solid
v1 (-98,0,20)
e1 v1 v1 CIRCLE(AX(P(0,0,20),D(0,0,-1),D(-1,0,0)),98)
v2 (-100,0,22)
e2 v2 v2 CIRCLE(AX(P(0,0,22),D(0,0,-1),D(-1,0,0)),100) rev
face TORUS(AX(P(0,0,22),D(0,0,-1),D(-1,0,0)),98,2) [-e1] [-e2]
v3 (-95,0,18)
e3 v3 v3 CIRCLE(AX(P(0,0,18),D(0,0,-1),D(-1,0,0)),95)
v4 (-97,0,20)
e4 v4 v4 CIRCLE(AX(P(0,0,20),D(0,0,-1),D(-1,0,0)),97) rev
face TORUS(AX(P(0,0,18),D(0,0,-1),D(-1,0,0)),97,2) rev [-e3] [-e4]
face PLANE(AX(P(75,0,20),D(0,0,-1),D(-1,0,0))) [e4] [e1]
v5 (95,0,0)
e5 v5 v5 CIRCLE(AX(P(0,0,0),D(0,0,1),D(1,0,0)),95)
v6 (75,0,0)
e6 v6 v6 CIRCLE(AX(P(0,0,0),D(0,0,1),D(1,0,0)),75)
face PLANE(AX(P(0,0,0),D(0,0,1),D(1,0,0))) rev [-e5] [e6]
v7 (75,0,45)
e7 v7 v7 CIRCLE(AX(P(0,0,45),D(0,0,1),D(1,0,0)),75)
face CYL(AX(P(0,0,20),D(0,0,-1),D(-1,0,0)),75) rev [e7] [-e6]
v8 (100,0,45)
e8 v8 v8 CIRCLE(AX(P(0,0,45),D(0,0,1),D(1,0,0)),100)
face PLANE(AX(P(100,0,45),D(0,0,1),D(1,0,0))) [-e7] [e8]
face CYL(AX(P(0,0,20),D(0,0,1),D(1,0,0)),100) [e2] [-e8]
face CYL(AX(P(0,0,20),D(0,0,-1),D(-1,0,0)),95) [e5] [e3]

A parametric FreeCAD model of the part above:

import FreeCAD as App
import Part
import Sketcher
Q = App.Units.Quantity


def edges_at(feature, points):
    """Names of the edges that pass closest to the given points."""
    edges = feature.Shape.Edges
    near = lambda p: min(range(len(edges)), key=lambda i: edges[i].distToShape(Part.Vertex(*p))[0])
    return sorted({f"Edge{near(p) + 1}" for p in points})

doc = App.newDocument("Part")
params = doc.addObject("Spreadsheet::Sheet", "Params")
for row, (alias, value) in enumerate([
    ("sketch1_diameter", "190 mm"),
    ("sketch1_diameter2", "150 mm"),
    ("pad1_length", "20 mm"),
    ("sketch2_width", "25 mm"),
    ("revolution_angle", "360 deg"),
    ("fillet_radius", "2 mm"),
], start=1):
    params.set(f"A{row}", alias)
    params.set(f"B{row}", "=" + value)
    params.setAlias(f"B{row}", alias)

body = doc.addObject("PartDesign::Body", "Body")

# Sketch on XY plane
sketch1 = body.newObject("Sketcher::SketchObject", "Sketch")
sketch1.AttachmentSupport = (doc.getObject("XY_Plane"), [""])
sketch1.MapMode = "FlatFace"
sketch1.addGeometry(Part.Circle(App.Vector(0, 0, 0), App.Vector(0, 0, 1), 95), False)
sketch1.addGeometry(Part.Circle(App.Vector(0, 0, 0), App.Vector(0, 0, 1), 75), False)
sketch1.addConstraint(Sketcher.Constraint("Coincident", 0, 3, -1, 1))
sketch1.addConstraint(Sketcher.Constraint("Coincident", 1, 3, -1, 1))
sketch1.addConstraint(Sketcher.Constraint("Diameter", 0, Q("190 mm")))
sketch1.addConstraint(Sketcher.Constraint("Diameter", 1, Q("150 mm")))
sketch1.setExpression("Constraints[2]", "Params.sketch1_diameter")
sketch1.setExpression("Constraints[3]", "Params.sketch1_diameter2")
pad1 = body.newObject("PartDesign::Pad", "Pad")
pad1.Profile = sketch1
pad1.setExpression("Length", "Params.pad1_length")

# Sketch on XZ plane
sketch2 = body.newObject("Sketcher::SketchObject", "Sketch001")
sketch2.AttachmentSupport = (doc.getObject("XZ_Plane"), [""])
sketch2.MapMode = "FlatFace"
sketch2.addGeometry(Part.LineSegment(App.Vector(75, 20, 0), App.Vector(75, 45, 0)), False)
sketch2.addGeometry(Part.LineSegment(App.Vector(75, 45, 0), App.Vector(100, 45, 0)), False)
sketch2.addGeometry(Part.LineSegment(App.Vector(100, 45, 0), App.Vector(100, 20, 0)), False)
sketch2.addGeometry(Part.LineSegment(App.Vector(100, 20, 0), App.Vector(75, 20, 0)), False)
sketch2.addConstraint(Sketcher.Constraint("Coincident", 0, 2, 1, 1))
sketch2.addConstraint(Sketcher.Constraint("Coincident", 1, 2, 2, 1))
sketch2.addConstraint(Sketcher.Constraint("Coincident", 2, 2, 3, 1))
sketch2.addConstraint(Sketcher.Constraint("Coincident", 3, 2, 0, 1))
sketch2.addConstraint(Sketcher.Constraint("Vertical", 0))
sketch2.addConstraint(Sketcher.Constraint("Horizontal", 1))
sketch2.addConstraint(Sketcher.Constraint("Vertical", 2))
sketch2.addConstraint(Sketcher.Constraint("Horizontal", 3))
sketch2.addConstraint(Sketcher.Constraint("Equal", 3, 0))
sketch2.addConstraint(Sketcher.Constraint("DistanceX", 1, 1, 1, 2, Q("25 mm")))
sketch2.addConstraint(Sketcher.Constraint("DistanceX", -1, 1, 0, 2, Q("75 mm")))
sketch2.addConstraint(Sketcher.Constraint("DistanceY", -1, 1, 0, 2, Q("45 mm")))
sketch2.setExpression("Constraints[9]", "Params.sketch2_width")
revolution = body.newObject("PartDesign::Revolution", "Revolution")
revolution.Profile = sketch2
revolution.ReferenceAxis = (sketch2, ["V_Axis"])
revolution.setExpression("Angle", "Params.revolution_angle")
doc.recompute()

fillet = body.newObject("PartDesign::Fillet", "Fillet")
fillet.Base = (revolution, edges_at(revolution, [(-100, 0, 20), (-95, 0, 20)]))
fillet.setExpression("Radius", "Params.fillet_radius")

doc.recompute()
